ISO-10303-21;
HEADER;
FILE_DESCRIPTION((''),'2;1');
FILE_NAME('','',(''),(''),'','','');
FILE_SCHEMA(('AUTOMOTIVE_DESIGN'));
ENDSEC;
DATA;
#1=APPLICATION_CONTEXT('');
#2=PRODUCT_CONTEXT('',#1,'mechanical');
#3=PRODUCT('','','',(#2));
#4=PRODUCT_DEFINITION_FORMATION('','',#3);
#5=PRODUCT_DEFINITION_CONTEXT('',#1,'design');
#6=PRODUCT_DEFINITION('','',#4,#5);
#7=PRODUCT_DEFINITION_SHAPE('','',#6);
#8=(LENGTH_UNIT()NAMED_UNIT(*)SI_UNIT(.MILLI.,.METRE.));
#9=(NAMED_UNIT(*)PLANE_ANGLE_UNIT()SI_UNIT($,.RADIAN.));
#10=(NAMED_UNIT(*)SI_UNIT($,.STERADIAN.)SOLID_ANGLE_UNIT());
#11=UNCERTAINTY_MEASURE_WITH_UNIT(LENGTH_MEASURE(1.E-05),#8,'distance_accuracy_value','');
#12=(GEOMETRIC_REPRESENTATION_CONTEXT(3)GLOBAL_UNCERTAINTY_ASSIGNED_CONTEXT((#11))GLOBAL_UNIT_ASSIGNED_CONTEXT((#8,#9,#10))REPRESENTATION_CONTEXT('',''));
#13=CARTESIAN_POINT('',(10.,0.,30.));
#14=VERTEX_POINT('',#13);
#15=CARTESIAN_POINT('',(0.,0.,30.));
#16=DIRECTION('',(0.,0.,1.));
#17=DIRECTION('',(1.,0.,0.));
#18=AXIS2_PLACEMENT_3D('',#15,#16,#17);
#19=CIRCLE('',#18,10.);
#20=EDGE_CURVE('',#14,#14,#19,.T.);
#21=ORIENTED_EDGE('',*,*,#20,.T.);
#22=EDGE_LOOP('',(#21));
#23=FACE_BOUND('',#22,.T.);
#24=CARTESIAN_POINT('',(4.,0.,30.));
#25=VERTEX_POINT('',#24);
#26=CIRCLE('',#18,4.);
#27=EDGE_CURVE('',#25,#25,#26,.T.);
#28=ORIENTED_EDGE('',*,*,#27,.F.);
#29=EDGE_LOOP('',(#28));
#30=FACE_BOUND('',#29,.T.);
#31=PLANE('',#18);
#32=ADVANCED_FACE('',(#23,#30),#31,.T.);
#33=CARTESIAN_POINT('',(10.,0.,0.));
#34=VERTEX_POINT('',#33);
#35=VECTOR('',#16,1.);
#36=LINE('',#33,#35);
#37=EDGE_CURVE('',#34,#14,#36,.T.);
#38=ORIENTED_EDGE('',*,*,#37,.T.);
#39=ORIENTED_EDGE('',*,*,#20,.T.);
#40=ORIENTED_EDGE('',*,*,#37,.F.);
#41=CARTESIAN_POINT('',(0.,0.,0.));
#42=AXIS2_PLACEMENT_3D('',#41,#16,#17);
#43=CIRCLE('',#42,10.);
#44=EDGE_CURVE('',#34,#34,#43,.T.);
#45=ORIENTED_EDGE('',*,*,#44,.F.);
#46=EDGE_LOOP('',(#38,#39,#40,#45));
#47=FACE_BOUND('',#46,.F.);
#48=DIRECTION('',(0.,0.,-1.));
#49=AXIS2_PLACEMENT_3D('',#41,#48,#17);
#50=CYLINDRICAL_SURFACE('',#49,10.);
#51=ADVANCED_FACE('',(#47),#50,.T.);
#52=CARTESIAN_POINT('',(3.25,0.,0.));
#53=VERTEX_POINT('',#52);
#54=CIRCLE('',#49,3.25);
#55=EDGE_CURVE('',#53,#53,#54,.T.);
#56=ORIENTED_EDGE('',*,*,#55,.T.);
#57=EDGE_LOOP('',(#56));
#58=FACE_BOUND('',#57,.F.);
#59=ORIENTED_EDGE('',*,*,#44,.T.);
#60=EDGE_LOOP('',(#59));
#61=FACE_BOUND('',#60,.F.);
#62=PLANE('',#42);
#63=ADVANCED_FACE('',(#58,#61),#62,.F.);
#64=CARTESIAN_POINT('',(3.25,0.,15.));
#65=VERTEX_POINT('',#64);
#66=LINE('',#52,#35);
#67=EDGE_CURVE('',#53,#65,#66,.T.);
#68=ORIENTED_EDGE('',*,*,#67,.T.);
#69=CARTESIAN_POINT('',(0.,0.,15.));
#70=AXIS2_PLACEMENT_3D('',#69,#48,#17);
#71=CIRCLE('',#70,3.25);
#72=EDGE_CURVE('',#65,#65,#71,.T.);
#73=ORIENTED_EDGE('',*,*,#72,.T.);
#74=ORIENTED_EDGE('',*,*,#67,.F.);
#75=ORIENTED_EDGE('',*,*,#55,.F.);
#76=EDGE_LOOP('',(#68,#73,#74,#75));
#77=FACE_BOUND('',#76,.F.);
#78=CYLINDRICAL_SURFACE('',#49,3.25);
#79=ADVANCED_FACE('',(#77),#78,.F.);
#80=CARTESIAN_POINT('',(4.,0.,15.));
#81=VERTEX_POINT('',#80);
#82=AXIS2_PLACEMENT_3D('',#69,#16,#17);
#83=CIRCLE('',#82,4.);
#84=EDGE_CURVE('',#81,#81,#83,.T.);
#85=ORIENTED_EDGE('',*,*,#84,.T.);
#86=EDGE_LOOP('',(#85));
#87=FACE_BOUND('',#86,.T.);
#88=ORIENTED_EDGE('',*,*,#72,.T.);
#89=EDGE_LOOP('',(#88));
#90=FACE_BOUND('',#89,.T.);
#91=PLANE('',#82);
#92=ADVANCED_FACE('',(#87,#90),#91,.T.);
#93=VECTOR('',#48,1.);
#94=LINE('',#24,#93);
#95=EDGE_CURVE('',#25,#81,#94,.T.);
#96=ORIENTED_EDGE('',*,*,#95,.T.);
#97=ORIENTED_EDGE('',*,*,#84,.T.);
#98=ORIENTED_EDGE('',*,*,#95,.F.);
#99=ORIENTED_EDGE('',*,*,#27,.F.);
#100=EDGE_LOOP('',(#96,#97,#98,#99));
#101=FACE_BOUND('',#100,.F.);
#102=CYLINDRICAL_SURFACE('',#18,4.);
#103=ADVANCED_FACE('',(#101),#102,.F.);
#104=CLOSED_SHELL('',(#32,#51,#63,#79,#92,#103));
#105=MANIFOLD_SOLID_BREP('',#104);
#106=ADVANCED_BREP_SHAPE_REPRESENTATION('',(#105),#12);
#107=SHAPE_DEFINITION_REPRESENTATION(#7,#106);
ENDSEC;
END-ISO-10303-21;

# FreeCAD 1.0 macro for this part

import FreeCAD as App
import Part
import Sketcher
from FreeCAD import Vector
Q = App.Units.Quantity

doc = App.newDocument("Part")
body = doc.addObject("PartDesign::Body", "Body")

# Sketch on XY plane
sketch1 = body.newObject("Sketcher::SketchObject", "Sketch")
sketch1.AttachmentSupport = (doc.getObject("XY_Plane"), [""])
sketch1.MapMode = "FlatFace"
sketch1.addGeometry(Part.Circle(Vector(0, 0, 0), Vector(0, 0, 1), 10), False)
sketch1.addConstraint([
    Sketcher.Constraint("Coincident", 0, 3, -1, 1),
    Sketcher.Constraint("Diameter", 0, Q("20 mm")),
])
pad1 = body.newObject("PartDesign::Pad", "Pad")
pad1.Profile = sketch1
pad1.Length = 30

# Sketch on XY plane
sketch2 = body.newObject("Sketcher::SketchObject", "Sketch001")
sketch2.AttachmentSupport = (doc.getObject("XY_Plane"), [""])
sketch2.MapMode = "FlatFace"
sketch2.AttachmentOffset = App.Placement(Vector(0, 0, 30), App.Rotation())
sketch2.addGeometry(Part.Circle(Vector(0, 0, 0), Vector(0, 0, 1), 4), False)
sketch2.addConstraint([
    Sketcher.Constraint("Coincident", 0, 3, -1, 1),
    Sketcher.Constraint("Diameter", 0, Q("8 mm")),
])
pocket1 = body.newObject("PartDesign::Pocket", "Pocket")
pocket1.Profile = sketch2
pocket1.Length = 15

# Sketch on XY plane
sketch3 = body.newObject("Sketcher::SketchObject", "Sketch002")
sketch3.AttachmentSupport = (doc.getObject("XY_Plane"), [""])
sketch3.MapMode = "FlatFace"
sketch3.addGeometry(Part.Circle(Vector(0, 0, 0), Vector(0, 0, 1), 3.2), False)
sketch3.addConstraint([
    Sketcher.Constraint("Coincident", 0, 3, -1, 1),
    Sketcher.Constraint("Diameter", 0, Q("6.5 mm")),
])
pocket2 = body.newObject("PartDesign::Pocket", "Pocket001")
pocket2.Profile = sketch3
pocket2.Length = 15
pocket2.Reversed = True

doc.recompute()
